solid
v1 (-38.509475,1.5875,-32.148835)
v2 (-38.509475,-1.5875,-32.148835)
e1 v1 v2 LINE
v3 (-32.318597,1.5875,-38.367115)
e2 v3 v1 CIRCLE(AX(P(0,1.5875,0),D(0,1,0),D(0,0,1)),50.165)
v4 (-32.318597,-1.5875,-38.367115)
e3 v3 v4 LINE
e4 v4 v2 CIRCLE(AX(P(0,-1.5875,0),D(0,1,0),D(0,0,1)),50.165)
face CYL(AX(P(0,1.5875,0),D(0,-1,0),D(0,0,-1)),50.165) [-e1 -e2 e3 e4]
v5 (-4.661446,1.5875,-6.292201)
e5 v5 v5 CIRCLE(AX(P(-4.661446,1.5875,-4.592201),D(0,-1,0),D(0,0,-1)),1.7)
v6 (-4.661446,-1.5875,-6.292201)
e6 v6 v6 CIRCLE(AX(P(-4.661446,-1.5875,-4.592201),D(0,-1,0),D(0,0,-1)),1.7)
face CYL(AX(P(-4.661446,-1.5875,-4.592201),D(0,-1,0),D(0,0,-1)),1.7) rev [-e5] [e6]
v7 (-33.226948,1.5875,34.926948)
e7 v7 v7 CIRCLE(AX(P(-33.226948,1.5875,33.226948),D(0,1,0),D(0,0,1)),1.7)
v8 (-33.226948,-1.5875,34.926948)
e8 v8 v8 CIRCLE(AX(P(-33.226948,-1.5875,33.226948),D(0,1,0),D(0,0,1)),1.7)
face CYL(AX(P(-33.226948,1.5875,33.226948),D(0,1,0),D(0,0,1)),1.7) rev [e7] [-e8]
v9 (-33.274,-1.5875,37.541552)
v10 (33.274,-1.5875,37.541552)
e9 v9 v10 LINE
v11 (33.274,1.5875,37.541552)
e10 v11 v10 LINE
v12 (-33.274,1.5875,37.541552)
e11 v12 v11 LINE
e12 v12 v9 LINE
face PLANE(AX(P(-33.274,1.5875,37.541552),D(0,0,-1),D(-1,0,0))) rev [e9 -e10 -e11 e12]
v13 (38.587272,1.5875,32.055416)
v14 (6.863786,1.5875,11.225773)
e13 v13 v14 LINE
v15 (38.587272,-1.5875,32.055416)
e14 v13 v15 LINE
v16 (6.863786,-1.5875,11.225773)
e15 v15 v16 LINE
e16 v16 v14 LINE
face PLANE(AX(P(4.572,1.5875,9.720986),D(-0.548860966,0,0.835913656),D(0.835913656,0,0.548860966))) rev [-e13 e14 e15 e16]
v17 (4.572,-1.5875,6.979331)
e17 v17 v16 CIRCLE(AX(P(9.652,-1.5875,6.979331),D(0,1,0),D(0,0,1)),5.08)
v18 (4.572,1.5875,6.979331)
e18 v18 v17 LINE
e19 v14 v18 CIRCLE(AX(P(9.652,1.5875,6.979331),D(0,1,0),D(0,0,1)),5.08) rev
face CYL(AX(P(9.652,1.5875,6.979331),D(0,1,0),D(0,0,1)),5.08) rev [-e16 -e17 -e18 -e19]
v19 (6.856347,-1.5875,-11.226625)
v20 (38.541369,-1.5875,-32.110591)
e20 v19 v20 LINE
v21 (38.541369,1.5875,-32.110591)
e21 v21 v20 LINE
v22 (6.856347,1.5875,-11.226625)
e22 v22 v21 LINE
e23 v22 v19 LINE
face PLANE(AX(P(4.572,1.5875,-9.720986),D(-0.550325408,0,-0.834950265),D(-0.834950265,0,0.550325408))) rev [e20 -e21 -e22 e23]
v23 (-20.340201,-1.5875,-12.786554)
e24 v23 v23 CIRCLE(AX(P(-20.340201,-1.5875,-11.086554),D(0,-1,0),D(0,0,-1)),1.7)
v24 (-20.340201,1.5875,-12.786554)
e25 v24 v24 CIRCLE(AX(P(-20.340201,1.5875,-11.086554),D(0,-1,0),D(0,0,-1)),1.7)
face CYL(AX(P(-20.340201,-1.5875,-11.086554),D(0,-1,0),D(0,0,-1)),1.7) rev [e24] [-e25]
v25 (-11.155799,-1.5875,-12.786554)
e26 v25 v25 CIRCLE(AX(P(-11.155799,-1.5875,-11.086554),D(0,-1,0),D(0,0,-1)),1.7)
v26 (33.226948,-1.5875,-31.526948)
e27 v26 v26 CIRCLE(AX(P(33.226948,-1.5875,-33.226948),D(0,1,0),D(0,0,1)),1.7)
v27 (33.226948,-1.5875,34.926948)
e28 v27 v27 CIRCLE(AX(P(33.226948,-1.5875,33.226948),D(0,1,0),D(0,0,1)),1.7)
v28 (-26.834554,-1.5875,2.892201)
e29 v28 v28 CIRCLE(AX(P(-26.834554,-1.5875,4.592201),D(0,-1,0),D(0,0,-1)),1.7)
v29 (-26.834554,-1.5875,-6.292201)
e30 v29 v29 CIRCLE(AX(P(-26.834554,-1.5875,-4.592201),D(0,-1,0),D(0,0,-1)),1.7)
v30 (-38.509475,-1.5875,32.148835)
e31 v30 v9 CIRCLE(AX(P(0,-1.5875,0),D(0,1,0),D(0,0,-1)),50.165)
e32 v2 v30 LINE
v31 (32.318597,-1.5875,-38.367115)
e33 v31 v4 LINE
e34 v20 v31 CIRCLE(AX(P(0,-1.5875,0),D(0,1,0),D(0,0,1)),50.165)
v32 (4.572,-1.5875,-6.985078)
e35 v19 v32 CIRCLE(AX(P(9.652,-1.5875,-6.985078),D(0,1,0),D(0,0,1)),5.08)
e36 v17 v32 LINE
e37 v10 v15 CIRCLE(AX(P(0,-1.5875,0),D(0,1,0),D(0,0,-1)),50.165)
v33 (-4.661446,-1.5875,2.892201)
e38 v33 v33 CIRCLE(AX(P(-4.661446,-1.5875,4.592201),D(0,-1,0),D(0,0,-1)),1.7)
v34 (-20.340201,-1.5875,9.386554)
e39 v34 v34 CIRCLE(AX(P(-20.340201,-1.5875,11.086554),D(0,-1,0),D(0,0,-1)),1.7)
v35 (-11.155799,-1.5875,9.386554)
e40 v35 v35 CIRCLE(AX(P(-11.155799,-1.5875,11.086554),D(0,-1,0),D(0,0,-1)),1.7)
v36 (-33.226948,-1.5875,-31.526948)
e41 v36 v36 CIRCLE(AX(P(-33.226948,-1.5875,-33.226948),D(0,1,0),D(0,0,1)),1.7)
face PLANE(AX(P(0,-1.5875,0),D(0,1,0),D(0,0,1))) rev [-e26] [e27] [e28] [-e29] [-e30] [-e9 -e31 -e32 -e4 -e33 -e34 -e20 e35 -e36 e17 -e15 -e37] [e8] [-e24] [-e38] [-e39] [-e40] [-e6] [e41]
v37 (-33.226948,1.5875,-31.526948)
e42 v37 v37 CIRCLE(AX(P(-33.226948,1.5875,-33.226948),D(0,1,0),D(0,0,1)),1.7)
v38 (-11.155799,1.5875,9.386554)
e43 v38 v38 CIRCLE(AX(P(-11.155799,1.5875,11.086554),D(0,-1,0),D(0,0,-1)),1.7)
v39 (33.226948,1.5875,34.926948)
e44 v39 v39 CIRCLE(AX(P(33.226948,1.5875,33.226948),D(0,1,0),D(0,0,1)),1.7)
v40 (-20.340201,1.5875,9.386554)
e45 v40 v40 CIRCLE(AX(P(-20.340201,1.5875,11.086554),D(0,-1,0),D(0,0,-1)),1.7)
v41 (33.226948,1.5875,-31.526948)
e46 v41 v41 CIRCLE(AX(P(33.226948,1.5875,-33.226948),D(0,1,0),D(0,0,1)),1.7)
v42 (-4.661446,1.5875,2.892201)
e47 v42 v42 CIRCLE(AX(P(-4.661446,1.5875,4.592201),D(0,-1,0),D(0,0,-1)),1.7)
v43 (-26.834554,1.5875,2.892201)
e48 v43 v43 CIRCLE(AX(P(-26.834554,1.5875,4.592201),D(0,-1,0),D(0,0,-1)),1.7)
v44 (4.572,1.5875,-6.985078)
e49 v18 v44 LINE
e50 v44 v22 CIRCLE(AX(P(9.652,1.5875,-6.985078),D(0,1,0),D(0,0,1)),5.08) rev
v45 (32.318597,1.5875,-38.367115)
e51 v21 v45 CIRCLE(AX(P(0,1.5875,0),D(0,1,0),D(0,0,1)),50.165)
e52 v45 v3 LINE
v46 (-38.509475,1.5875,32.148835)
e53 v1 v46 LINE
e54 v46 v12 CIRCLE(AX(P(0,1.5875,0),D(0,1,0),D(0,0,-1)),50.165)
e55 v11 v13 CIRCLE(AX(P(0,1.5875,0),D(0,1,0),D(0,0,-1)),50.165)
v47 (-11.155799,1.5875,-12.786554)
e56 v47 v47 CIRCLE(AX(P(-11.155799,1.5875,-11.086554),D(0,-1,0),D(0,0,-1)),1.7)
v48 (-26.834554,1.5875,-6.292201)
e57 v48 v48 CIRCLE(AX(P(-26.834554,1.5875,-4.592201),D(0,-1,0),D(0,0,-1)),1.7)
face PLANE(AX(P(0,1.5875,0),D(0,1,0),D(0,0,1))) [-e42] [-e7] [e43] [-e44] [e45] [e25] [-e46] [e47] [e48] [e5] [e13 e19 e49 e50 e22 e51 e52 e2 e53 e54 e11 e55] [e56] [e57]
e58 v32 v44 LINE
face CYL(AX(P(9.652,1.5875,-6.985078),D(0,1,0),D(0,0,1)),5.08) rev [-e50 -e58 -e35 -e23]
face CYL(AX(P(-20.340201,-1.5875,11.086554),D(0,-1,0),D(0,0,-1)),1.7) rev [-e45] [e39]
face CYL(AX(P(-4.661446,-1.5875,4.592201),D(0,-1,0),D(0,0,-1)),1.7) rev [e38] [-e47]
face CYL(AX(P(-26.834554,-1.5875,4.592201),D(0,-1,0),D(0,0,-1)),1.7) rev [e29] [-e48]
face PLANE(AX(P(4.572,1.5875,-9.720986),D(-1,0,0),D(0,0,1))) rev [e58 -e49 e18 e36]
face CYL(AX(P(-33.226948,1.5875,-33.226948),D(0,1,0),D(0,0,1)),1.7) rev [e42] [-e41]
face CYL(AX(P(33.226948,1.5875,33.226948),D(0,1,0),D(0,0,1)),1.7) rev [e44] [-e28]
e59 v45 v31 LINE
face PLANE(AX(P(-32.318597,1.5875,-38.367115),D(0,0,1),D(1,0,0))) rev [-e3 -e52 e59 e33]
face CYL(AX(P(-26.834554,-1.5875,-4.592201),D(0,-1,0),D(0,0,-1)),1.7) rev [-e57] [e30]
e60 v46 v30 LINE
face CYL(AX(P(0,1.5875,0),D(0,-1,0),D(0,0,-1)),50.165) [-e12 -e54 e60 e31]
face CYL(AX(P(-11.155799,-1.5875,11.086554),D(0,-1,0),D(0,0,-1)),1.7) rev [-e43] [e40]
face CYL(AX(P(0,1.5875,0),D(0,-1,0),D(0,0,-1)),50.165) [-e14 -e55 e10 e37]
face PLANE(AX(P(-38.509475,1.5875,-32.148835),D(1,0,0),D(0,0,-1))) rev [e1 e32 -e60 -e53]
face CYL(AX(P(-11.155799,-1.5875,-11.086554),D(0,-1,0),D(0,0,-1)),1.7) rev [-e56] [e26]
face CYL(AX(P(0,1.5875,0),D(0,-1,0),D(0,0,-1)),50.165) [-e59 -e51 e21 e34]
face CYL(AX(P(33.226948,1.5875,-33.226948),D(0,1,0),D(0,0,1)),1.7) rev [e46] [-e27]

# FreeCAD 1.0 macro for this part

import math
import FreeCAD as App
import Part
import Sketcher
Q = App.Units.Quantity


def edges_at(feature, points):
    """Names of the edges that pass closest to the given points."""
    edges = feature.Shape.Edges
    near = lambda p: min(range(len(edges)), key=lambda i: edges[i].distToShape(Part.Vertex(*p))[0])
    return sorted({f"Edge{near(p) + 1}" for p in points})

doc = App.newDocument("Part")
body = doc.addObject("PartDesign::Body", "Body")

# Sketch on XZ plane
sketch1 = body.newObject("Sketcher::SketchObject", "Sketch")
sketch1.AttachmentSupport = (doc.getObject("XZ_Plane"), [""])
sketch1.MapMode = "FlatFace"
sketch1.addGeometry([
    Part.LineSegment(App.Vector(-38.509475, -32.148835, 0), App.Vector(-38.509475, 32.148835, 0)),  # 0
    Part.ArcOfCircle(Part.Circle(App.Vector(0, 0, 0), App.Vector(0, 0, 1), 50.165), math.radians(131.551359), math.radians(140.143885)),  # 1
    Part.LineSegment(App.Vector(-33.274, 37.541552, 0), App.Vector(33.274, 37.541552, 0)),  # 2
    Part.ArcOfCircle(Part.Circle(App.Vector(0, 0, 0), App.Vector(0, 0, 1), 50.165), math.radians(39.717264), math.radians(48.448641)),  # 3
    Part.LineSegment(App.Vector(38.587272, 32.055416, 0), App.Vector(4.572, 9.720986, 0)),  # 4
    Part.LineSegment(App.Vector(4.572, 9.720986, 0), App.Vector(4.572, -9.720986, 0)),  # 5
    Part.LineSegment(App.Vector(4.572, -9.720986, 0), App.Vector(38.541369, -32.110591, 0)),  # 6
    Part.ArcOfCircle(Part.Circle(App.Vector(0, 0, 0), App.Vector(0, 0, 1), 50.165), math.radians(-49.890838), math.radians(-39.799239)),  # 7
    Part.LineSegment(App.Vector(32.318597, -38.367115, 0), App.Vector(-32.318597, -38.367115, 0)),  # 8
    Part.ArcOfCircle(Part.Circle(App.Vector(0, 0, 0), App.Vector(0, 0, 1), 50.165), math.radians(-140.143885), math.radians(-130.109162)),  # 9
], False)
sketch1.addConstraint([
    Sketcher.Constraint("Coincident", 0, 2, 1, 2),
    Sketcher.Constraint("Coincident", 1, 1, 2, 1),
    Sketcher.Constraint("Coincident", 2, 2, 3, 2),
    Sketcher.Constraint("Coincident", 3, 1, 4, 1),
    Sketcher.Constraint("Coincident", 4, 2, 5, 1),
    Sketcher.Constraint("Coincident", 5, 2, 6, 1),
    Sketcher.Constraint("Coincident", 6, 2, 7, 2),
    Sketcher.Constraint("Coincident", 7, 1, 8, 1),
    Sketcher.Constraint("Coincident", 8, 2, 9, 2),
    Sketcher.Constraint("Coincident", 9, 1, 0, 1),
    Sketcher.Constraint("Vertical", 0),
    Sketcher.Constraint("Horizontal", 2),
    Sketcher.Constraint("Vertical", 5),
    Sketcher.Constraint("Horizontal", 8),
    Sketcher.Constraint("Coincident", 1, 3, -1, 1),
    Sketcher.Constraint("Coincident", 3, 3, -1, 1),
    Sketcher.Constraint("Coincident", 7, 3, -1, 1),
    Sketcher.Constraint("Coincident", 9, 3, -1, 1),
    Sketcher.Constraint("Equal", 1, 3),
    Sketcher.Constraint("Equal", 3, 7),
    Sketcher.Constraint("Equal", 7, 9),
    Sketcher.Constraint("Radius", 1, Q("1.975 in")),
    Sketcher.Constraint("DistanceX", 2, 1, 2, 2, Q("2.62 in")),
    Sketcher.Constraint("DistanceX", -1, 1, 4, 2, Q("0.18 in")),
    Sketcher.Constraint("DistanceY", 0, 1, 0, 2, 64.297669),
    Sketcher.Constraint("DistanceY", 5, 2, 5, 1, 19.441971),
    Sketcher.Constraint("DistanceX", 8, 2, 8, 1, 64.637195),
    Sketcher.Constraint("DistanceX", -1, 1, 3, 1, 38.587272),
    Sketcher.Constraint("DistanceX", -1, 1, 6, 2, 38.541369),
    Sketcher.Constraint("DistanceY", 7, 1, 5, 2, 28.646129),
])
pad1 = body.newObject("PartDesign::Pad", "Pad")
pad1.Profile = sketch1
pad1.Length = Q("0.125 in")
pad1.Midplane = True

# Sketch on XZ plane
sketch2 = body.newObject("Sketcher::SketchObject", "Sketch001")
sketch2.AttachmentSupport = (doc.getObject("XZ_Plane"), [""])
sketch2.MapMode = "FlatFace"
sketch2.AttachmentOffset = App.Placement(App.Vector(0, 0, -0.0625 * 25.4), App.Rotation())
sketch2.addGeometry([
    Part.Circle(App.Vector(-33.226948, -33.226948, 0), App.Vector(0, 0, 1), 1.7),
    Part.Circle(App.Vector(33.226948, -33.226948, 0), App.Vector(0, 0, 1), 1.7),
    Part.Circle(App.Vector(33.226948, 33.226948, 0), App.Vector(0, 0, 1), 1.7),
    Part.Circle(App.Vector(-33.226948, 33.226948, 0), App.Vector(0, 0, 1), 1.7),
], False)
sketch2.addConstraint([
    Sketcher.Constraint("Equal", 0, 1),
    Sketcher.Constraint("Equal", 1, 2),
    Sketcher.Constraint("Equal", 2, 3),
    Sketcher.Constraint("Symmetric", 0, 3, 2, 3, -1, 1),
    Sketcher.Constraint("Symmetric", 1, 3, 3, 3, -1, 1),
    Sketcher.Constraint("Symmetric", 0, 3, 1, 3, -2),
    Sketcher.Constraint("Diameter", 0, 3.4),
    Sketcher.Constraint("DistanceX", 0, 3, -1, 1, 33.226948),
    Sketcher.Constraint("DistanceY", 0, 3, -1, 1, 33.226948),
])
doc.recompute()
hole = body.newObject("PartDesign::Hole", "Hole")
hole.Profile = sketch2
hole.ThreadType = "None"
hole.Diameter = 3.4
hole.DepthType = "ThroughAll"
hole.Reversed = True

# Sketch on XZ plane
sketch3 = body.newObject("Sketcher::SketchObject", "Sketch002")
sketch3.AttachmentSupport = (doc.getObject("XZ_Plane"), [""])
sketch3.MapMode = "FlatFace"
sketch3.AttachmentOffset = App.Placement(App.Vector(0, 0, 0.0625 * 25.4), App.Rotation())
sketch3.addGeometry(Part.Circle(App.Vector(-4.661446, 4.592201, 0), App.Vector(0, 0, 1), 1.7), False)
sketch3.addConstraint([
    Sketcher.Constraint("Diameter", 0, 3.4),
    Sketcher.Constraint("DistanceY", -1, 1, 0, 3, 4.592201),
    Sketcher.Constraint("DistanceX", 0, 3, -1, 1, 4.661446),
])
doc.recompute()
hole2 = body.newObject("PartDesign::Hole", "Hole001")
hole2.Profile = sketch3
hole2.ThreadType = "None"
hole2.Diameter = 3.4
hole2.DepthType = "ThroughAll"
doc.recompute()

datumline = body.newObject("PartDesign::Line", "DatumLine")
datumline.Placement = App.Placement(App.Vector(-15.748, 0, 0), App.Rotation(App.Vector(0, 0, 1), App.Vector(0, 1, 0)))
polarpattern = body.newObject("PartDesign::PolarPattern", "PolarPattern")
polarpattern.Originals = [hole2]
polarpattern.Axis = (datumline, [""])
polarpattern.Angle = 360
polarpattern.Occurrences = 8
body.Tip = polarpattern
doc.recompute()

fillet = body.newObject("PartDesign::Fillet", "Fillet")
fillet.Base = (polarpattern, edges_at(polarpattern, [(4.572, 0, -9.721), (4.572, 0, 9.721)]))
fillet.Radius = Q("0.2 in")

doc.recompute()
